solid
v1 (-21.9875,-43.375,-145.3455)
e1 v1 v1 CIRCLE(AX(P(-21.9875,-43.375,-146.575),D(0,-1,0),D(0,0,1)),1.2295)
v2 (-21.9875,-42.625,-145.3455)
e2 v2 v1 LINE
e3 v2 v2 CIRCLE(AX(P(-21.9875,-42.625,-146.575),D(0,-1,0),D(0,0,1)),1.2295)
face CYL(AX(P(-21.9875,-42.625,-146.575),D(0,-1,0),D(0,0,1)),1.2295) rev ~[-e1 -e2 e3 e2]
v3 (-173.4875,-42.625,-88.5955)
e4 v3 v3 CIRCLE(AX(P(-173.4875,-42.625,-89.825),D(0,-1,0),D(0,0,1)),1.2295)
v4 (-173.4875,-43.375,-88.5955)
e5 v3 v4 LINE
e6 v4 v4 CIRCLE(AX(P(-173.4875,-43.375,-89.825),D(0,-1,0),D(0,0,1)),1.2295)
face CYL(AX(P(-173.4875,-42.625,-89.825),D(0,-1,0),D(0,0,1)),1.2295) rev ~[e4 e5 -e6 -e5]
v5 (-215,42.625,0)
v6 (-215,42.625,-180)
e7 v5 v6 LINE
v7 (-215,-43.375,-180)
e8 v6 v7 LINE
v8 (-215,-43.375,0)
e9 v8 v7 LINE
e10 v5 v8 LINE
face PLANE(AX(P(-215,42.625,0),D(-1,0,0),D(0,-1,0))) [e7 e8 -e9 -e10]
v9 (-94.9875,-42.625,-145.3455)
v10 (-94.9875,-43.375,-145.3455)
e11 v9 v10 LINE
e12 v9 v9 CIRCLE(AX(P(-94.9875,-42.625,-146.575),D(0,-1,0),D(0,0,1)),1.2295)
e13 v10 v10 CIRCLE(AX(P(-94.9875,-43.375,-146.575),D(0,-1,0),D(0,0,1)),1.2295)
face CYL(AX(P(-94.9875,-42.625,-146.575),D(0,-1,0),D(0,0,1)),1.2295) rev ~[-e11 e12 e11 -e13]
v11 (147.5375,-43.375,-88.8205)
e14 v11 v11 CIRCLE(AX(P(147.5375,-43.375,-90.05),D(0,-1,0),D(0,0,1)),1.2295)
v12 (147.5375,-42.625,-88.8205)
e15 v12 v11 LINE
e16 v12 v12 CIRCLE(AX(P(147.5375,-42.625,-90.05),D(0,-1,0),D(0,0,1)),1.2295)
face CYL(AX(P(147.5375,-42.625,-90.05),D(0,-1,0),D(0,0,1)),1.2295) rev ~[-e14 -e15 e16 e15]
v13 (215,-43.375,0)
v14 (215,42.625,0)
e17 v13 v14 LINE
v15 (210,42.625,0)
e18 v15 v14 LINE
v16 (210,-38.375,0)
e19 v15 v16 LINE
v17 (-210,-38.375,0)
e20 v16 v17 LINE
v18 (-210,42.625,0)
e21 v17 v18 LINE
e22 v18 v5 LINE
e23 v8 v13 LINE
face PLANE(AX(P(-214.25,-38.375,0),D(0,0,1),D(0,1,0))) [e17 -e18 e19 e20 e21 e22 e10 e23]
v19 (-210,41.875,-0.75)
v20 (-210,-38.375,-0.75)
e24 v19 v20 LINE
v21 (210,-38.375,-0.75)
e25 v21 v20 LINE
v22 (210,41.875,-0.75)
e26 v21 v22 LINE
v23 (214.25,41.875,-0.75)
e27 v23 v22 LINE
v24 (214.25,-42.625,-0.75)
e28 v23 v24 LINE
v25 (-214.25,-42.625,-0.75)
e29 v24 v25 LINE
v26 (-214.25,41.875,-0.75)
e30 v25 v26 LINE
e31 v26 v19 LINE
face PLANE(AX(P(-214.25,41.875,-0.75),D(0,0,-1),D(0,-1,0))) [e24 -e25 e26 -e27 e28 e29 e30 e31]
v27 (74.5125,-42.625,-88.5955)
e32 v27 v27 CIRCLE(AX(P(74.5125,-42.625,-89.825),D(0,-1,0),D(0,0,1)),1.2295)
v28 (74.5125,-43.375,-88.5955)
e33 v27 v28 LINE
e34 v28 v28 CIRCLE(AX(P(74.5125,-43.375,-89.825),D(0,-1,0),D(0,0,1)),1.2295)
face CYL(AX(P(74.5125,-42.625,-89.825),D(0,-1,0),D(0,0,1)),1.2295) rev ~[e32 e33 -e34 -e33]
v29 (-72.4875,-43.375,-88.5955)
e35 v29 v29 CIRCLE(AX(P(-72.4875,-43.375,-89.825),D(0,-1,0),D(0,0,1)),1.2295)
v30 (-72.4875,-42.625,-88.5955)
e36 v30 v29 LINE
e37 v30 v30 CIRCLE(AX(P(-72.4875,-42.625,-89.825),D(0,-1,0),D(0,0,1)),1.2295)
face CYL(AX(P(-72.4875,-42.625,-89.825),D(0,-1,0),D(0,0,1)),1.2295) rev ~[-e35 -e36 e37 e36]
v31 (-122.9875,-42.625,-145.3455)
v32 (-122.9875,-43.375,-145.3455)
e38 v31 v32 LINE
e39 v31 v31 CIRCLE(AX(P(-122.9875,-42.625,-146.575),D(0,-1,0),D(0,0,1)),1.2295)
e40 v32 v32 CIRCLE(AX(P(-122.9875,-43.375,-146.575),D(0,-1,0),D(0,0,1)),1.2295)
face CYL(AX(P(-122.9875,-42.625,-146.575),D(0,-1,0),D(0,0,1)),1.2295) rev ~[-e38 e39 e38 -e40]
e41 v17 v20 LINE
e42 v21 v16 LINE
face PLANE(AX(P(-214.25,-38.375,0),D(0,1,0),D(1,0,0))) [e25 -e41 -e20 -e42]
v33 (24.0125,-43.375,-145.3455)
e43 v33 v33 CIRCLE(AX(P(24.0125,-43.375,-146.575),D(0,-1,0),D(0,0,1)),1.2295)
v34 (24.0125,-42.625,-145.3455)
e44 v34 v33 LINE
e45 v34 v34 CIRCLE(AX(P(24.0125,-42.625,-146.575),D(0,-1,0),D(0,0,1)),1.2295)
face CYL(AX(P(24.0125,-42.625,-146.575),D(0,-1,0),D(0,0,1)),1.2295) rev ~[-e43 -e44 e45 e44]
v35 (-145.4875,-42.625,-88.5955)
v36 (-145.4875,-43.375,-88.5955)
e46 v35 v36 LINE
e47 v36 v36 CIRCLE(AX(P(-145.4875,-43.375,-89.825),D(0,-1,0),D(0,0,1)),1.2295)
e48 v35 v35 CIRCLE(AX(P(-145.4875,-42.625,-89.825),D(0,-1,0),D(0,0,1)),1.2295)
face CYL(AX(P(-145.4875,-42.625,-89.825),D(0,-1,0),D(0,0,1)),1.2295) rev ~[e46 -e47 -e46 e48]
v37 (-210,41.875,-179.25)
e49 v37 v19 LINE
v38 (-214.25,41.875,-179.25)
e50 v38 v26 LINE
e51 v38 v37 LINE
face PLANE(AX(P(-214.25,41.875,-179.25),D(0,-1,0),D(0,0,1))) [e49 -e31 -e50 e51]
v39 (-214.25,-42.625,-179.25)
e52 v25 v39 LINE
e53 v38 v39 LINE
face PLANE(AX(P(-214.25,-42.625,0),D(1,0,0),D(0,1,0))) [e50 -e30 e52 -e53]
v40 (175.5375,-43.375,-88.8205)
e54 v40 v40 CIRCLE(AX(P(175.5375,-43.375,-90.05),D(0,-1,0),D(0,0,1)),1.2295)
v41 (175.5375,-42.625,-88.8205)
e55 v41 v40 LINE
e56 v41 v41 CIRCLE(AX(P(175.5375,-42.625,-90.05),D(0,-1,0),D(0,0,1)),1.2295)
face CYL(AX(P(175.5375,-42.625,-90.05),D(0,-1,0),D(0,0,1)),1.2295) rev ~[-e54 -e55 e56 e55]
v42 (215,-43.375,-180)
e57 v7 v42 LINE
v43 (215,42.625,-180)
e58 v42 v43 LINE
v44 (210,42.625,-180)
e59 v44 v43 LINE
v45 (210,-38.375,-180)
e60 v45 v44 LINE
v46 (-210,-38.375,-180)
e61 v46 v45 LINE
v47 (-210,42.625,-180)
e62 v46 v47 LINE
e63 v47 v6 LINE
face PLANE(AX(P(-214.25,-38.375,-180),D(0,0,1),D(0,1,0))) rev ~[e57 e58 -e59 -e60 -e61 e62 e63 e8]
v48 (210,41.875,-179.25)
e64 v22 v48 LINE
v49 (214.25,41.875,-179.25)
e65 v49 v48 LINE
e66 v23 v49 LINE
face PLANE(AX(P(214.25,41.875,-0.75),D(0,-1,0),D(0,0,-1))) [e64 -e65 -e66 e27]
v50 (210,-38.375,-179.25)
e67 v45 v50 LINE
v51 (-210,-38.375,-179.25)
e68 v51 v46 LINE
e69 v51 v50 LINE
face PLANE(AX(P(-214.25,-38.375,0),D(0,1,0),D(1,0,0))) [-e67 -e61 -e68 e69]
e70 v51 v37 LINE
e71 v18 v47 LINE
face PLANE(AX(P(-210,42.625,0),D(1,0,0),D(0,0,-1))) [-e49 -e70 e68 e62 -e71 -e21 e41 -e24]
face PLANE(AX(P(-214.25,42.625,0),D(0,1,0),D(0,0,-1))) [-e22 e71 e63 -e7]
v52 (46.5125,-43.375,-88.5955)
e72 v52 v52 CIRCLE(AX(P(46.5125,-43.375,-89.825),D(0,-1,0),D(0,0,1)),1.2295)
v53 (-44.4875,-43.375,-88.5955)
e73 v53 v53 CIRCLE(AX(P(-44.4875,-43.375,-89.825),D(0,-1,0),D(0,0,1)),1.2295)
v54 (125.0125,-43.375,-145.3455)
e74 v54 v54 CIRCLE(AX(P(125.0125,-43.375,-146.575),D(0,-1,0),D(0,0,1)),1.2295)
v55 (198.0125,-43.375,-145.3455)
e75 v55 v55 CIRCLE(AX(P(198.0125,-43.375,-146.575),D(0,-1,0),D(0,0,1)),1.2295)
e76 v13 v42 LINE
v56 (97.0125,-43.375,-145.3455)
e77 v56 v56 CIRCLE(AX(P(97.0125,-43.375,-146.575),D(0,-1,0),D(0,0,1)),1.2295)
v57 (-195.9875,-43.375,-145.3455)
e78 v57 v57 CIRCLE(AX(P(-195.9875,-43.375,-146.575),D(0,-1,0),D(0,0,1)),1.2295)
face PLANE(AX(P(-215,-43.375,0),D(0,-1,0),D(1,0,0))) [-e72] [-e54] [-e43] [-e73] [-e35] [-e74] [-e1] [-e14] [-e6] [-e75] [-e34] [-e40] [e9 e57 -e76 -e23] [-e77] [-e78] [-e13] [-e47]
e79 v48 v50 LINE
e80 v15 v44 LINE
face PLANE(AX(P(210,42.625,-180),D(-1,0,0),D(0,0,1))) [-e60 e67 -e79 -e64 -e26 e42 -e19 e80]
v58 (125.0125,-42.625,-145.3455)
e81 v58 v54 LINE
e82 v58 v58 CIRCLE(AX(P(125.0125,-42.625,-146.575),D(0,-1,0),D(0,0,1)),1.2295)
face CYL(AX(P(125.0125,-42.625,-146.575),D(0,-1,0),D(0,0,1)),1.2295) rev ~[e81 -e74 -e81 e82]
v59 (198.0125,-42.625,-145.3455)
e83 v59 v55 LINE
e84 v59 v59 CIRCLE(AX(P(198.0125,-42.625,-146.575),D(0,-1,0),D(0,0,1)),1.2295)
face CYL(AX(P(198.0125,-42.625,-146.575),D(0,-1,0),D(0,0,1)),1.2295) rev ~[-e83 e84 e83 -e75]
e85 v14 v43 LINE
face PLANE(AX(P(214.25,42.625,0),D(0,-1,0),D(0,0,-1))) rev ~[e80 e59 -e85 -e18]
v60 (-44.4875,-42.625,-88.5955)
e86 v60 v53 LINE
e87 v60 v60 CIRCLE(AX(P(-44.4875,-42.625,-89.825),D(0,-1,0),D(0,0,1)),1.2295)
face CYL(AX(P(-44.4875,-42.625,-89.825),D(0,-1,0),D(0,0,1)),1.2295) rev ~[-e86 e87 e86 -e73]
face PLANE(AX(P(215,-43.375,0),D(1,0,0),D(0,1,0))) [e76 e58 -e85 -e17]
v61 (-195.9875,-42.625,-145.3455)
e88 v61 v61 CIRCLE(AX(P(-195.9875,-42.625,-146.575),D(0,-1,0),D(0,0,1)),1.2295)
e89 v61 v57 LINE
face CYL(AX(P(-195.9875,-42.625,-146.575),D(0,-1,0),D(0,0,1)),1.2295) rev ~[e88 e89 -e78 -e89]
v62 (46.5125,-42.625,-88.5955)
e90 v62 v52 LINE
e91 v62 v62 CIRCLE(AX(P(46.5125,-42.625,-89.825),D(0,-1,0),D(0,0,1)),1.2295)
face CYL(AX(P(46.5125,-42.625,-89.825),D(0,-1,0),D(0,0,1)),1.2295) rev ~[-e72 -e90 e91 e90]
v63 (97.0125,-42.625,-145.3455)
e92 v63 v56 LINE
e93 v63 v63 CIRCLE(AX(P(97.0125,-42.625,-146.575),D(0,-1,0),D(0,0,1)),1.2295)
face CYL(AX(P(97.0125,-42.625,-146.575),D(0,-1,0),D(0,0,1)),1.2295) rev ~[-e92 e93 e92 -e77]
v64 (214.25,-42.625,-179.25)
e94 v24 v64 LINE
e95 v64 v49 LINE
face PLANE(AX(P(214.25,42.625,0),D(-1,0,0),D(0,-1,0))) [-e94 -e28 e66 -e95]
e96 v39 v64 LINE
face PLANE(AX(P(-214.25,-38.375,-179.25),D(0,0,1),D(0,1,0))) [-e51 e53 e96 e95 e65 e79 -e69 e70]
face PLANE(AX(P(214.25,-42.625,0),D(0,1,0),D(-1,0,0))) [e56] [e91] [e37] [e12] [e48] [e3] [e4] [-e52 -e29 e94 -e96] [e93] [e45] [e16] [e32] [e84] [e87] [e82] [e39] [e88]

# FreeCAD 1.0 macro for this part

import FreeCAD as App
import Part
import Sketcher
from FreeCAD import Vector


def add_polygon(sketch, points):
    """Adds a closed chain of lines whose ends are joined by coincident constraints."""
    first, n = sketch.GeometryCount, len(points)
    for a, b in zip(points, points[1:] + points[:1]):
        sketch.addGeometry(Part.LineSegment(App.Vector(*a, 0), App.Vector(*b, 0)), False)
    for i in range(n):
        sketch.addConstraint(Sketcher.Constraint("Coincident", first + i, 2, first + (i + 1) % n, 1))

doc = App.newDocument("Part")
params = doc.addObject("Spreadsheet::Sheet", "Params")
for row, (alias, value) in enumerate([
    ("sketch1_width", "430 mm"),
    ("sketch1_height", "86 mm"),
    ("sketch1_width2", "428.5 mm"),
    ("sketch1_height2", "85.25 mm"),
    ("pad1_length", "180 mm"),
    ("sketch2_height", "0.75 mm"),
    ("sketch2_width", "428.5 mm"),
    ("pad2_length", "4.25 mm"),
    ("sketch3_width", "81 mm"),
    ("sketch3_height", "178.5 mm"),
    ("sketch3_width2", "80.25 mm"),
    ("sketch3_height2", "180 mm"),
    ("pad3_length", "4.25 mm"),
    ("sketch4_width", "81 mm"),
    ("sketch4_height", "178.5 mm"),
    ("sketch4_width2", "80.25 mm"),
    ("sketch4_height2", "180 mm"),
    ("pad4_length", "4.25 mm"),
    ("hole_diameter", "2.459 mm"),
], start=1):
    params.set(f"A{row}", alias)
    params.set(f"B{row}", "=" + value)
    params.setAlias(f"B{row}", alias)

body = doc.addObject("PartDesign::Body", "Body")

sketch1 = body.newObject("Sketcher::SketchObject", "Sketch")
sketch1.AttachmentSupport = (doc.getObject("XY_Plane"), [""])
sketch1.MapMode = "FlatFace"
add_polygon(sketch1, [(-215, 42.6), (-215, -43.4), (215, -43.4), (215, 42.6), (214.2, 42.6), (214.2, -42.6), (-214.2, -42.6), (-214.2, 42.6)])
sketch1.addConstraint(Sketcher.Constraint("Vertical", 0))
sketch1.addConstraint(Sketcher.Constraint("Horizontal", 1))
sketch1.addConstraint(Sketcher.Constraint("Vertical", 2))
sketch1.addConstraint(Sketcher.Constraint("Horizontal", 3))
sketch1.addConstraint(Sketcher.Constraint("Vertical", 4))
sketch1.addConstraint(Sketcher.Constraint("Horizontal", 5))
sketch1.addConstraint(Sketcher.Constraint("Vertical", 6))
sketch1.addConstraint(Sketcher.Constraint("Horizontal", 7))
sketch1.addConstraint(Sketcher.Constraint("Symmetric", 3, 2, 5, 2, -1, 1))
sketch1.addConstraint(Sketcher.Constraint("Symmetric", 2, 2, 7, 2, -2))
sketch1.addConstraint(Sketcher.Constraint("DistanceX", 1, 1, 1, 2, 430.0))
sketch1.addConstraint(Sketcher.Constraint("DistanceY", 0, 2, 0, 1, 86.0))
sketch1.addConstraint(Sketcher.Constraint("DistanceX", 5, 2, 5, 1, 428.5))
sketch1.addConstraint(Sketcher.Constraint("DistanceY", 4, 2, 4, 1, 85.25))
sketch1.setExpression("Constraints[18]", "Params.sketch1_width")
sketch1.setExpression("Constraints[19]", "Params.sketch1_height")
sketch1.setExpression("Constraints[20]", "Params.sketch1_width2")
sketch1.setExpression("Constraints[21]", "Params.sketch1_height2")
pad1 = body.newObject("PartDesign::Pad", "Pad")
pad1.Profile = sketch1
pad1.setExpression("Length", "Params.pad1_length")
pad1.Reversed = True

sketch2 = body.newObject("Sketcher::SketchObject", "Sketch001")
sketch2.AttachmentSupport = (doc.getObject("XZ_Plane"), [""])
sketch2.MapMode = "FlatFace"
sketch2.AttachmentOffset = App.Placement(Vector(0, 0, 42.625), App.Rotation())
add_polygon(sketch2, [(-214.2, 0), (214.2, 0), (214.2, -0.8), (-214.2, -0.8)])
add_polygon(sketch2, [(-214.2, -179.2), (214.2, -179.2), (214.2, -180), (-214.2, -180)])
sketch2.addConstraint(Sketcher.Constraint("Horizontal", 0))
sketch2.addConstraint(Sketcher.Constraint("Vertical", 1))
sketch2.addConstraint(Sketcher.Constraint("Horizontal", 2))
sketch2.addConstraint(Sketcher.Constraint("Vertical", 3))
sketch2.addConstraint(Sketcher.Constraint("Horizontal", 4))
sketch2.addConstraint(Sketcher.Constraint("Vertical", 5))
sketch2.addConstraint(Sketcher.Constraint("Horizontal", 6))
sketch2.addConstraint(Sketcher.Constraint("Vertical", 7))
sketch2.addConstraint(Sketcher.Constraint("Symmetric", 0, 2, 3, 2, -1, 1))
sketch2.addConstraint(Sketcher.Constraint("Vertical", 1, 2, 4, 2))
sketch2.addConstraint(Sketcher.Constraint("Vertical", 3, 2, 6, 2))
sketch2.addConstraint(Sketcher.Constraint("Equal", 3, 5))
sketch2.addConstraint(Sketcher.Constraint("DistanceY", 1, 2, 1, 1, 0.75))
sketch2.addConstraint(Sketcher.Constraint("DistanceX", 0, 1, 0, 2, 428.5))
sketch2.addConstraint(Sketcher.Constraint("DistanceY", 5, 2, -1, 1, 180.0))
sketch2.setExpression("Constraints[20]", "Params.sketch2_height")
sketch2.setExpression("Constraints[21]", "Params.sketch2_width")
pad2 = body.newObject("PartDesign::Pad", "Pad001")
pad2.Profile = sketch2
pad2.setExpression("Length", "Params.pad2_length")
pad2.Reversed = True

sketch3 = body.newObject("Sketcher::SketchObject", "Sketch002")
sketch3.AttachmentSupport = (doc.getObject("YZ_Plane"), [""])
sketch3.MapMode = "FlatFace"
sketch3.AttachmentOffset = App.Placement(Vector(0, 0, 214.25), App.Rotation())
add_polygon(sketch3, [(42.6, -180), (-38.4, -180), (-38.4, -179.2), (41.9, -179.2), (41.9, -0.8), (-38.4, -0.8), (-38.4, 0), (42.6, 0)])
sketch3.addConstraint(Sketcher.Constraint("Horizontal", 0))
sketch3.addConstraint(Sketcher.Constraint("Vertical", 1))
sketch3.addConstraint(Sketcher.Constraint("Horizontal", 2))
sketch3.addConstraint(Sketcher.Constraint("Vertical", 3))
sketch3.addConstraint(Sketcher.Constraint("Horizontal", 4))
sketch3.addConstraint(Sketcher.Constraint("Vertical", 5))
sketch3.addConstraint(Sketcher.Constraint("Horizontal", 6))
sketch3.addConstraint(Sketcher.Constraint("Vertical", 7))
sketch3.addConstraint(Sketcher.Constraint("PointOnObject", 5, 2, -1))
sketch3.addConstraint(Sketcher.Constraint("Vertical", 1, 2, 4, 2))
sketch3.addConstraint(Sketcher.Constraint("Equal", 1, 5))
sketch3.addConstraint(Sketcher.Constraint("DistanceX", 0, 2, 0, 1, 81.0))
sketch3.addConstraint(Sketcher.Constraint("DistanceY", 3, 1, 3, 2, 178.5))
sketch3.addConstraint(Sketcher.Constraint("DistanceX", 2, 1, 2, 2, 80.25))
sketch3.addConstraint(Sketcher.Constraint("DistanceY", 7, 2, 7, 1, 180.0))
sketch3.addConstraint(Sketcher.Constraint("DistanceX", 0, 2, -1, 1, 38.375))
sketch3.setExpression("Constraints[19]", "Params.sketch3_width")
sketch3.setExpression("Constraints[20]", "Params.sketch3_height")
sketch3.setExpression("Constraints[21]", "Params.sketch3_width2")
sketch3.setExpression("Constraints[22]", "Params.sketch3_height2")
pad3 = body.newObject("PartDesign::Pad", "Pad002")
pad3.Profile = sketch3
pad3.setExpression("Length", "Params.pad3_length")
pad3.Reversed = True

sketch4 = body.newObject("Sketcher::SketchObject", "Sketch003")
sketch4.AttachmentSupport = (doc.getObject("YZ_Plane"), [""])
sketch4.MapMode = "FlatFace"
sketch4.AttachmentOffset = App.Placement(Vector(0, 0, -214.25), App.Rotation())
add_polygon(sketch4, [(42.6, 0), (-38.4, 0), (-38.4, -0.8), (41.9, -0.8), (41.9, -179.2), (-38.4, -179.2), (-38.4, -180), (42.6, -180)])
sketch4.addConstraint(Sketcher.Constraint("Horizontal", 0))
sketch4.addConstraint(Sketcher.Constraint("Vertical", 1))
sketch4.addConstraint(Sketcher.Constraint("Horizontal", 2))
sketch4.addConstraint(Sketcher.Constraint("Vertical", 3))
sketch4.addConstraint(Sketcher.Constraint("Horizontal", 4))
sketch4.addConstraint(Sketcher.Constraint("Vertical", 5))
sketch4.addConstraint(Sketcher.Constraint("Horizontal", 6))
sketch4.addConstraint(Sketcher.Constraint("Vertical", 7))
sketch4.addConstraint(Sketcher.Constraint("PointOnObject", 0, 2, -1))
sketch4.addConstraint(Sketcher.Constraint("Vertical", 1, 2, 4, 2))
sketch4.addConstraint(Sketcher.Constraint("Equal", 1, 5))
sketch4.addConstraint(Sketcher.Constraint("DistanceX", 0, 2, 0, 1, 81.0))
sketch4.addConstraint(Sketcher.Constraint("DistanceY", 3, 2, 3, 1, 178.5))
sketch4.addConstraint(Sketcher.Constraint("DistanceX", 2, 1, 2, 2, 80.25))
sketch4.addConstraint(Sketcher.Constraint("DistanceY", 7, 1, 7, 2, 180.0))
sketch4.addConstraint(Sketcher.Constraint("DistanceX", 0, 2, -1, 1, 38.375))
sketch4.setExpression("Constraints[19]", "Params.sketch4_width")
sketch4.setExpression("Constraints[20]", "Params.sketch4_height")
sketch4.setExpression("Constraints[21]", "Params.sketch4_width2")
sketch4.setExpression("Constraints[22]", "Params.sketch4_height2")
pad4 = body.newObject("PartDesign::Pad", "Pad003")
pad4.Profile = sketch4
pad4.setExpression("Length", "Params.pad4_length")

sketch5 = body.newObject("Sketcher::SketchObject", "Sketch004")
sketch5.AttachmentSupport = (doc.getObject("XZ_Plane"), [""])
sketch5.MapMode = "FlatFace"
sketch5.AttachmentOffset = App.Placement(Vector(0, 0, 42.625), App.Rotation())
sketch5.addGeometry(Part.Circle(Vector(-196, -146.6, 0), Vector(0, 0, 1), 1.2), False)
sketch5.addGeometry(Part.Circle(Vector(-123, -146.6, 0), Vector(0, 0, 1), 1.2), False)
sketch5.addGeometry(Part.Circle(Vector(-145.5, -89.8, 0), Vector(0, 0, 1), 1.2), False)
sketch5.addGeometry(Part.Circle(Vector(-173.5, -89.8, 0), Vector(0, 0, 1), 1.2), False)
sketch5.addGeometry(Part.Circle(Vector(-95, -146.6, 0), Vector(0, 0, 1), 1.2), False)
sketch5.addGeometry(Part.Circle(Vector(-72.5, -89.8, 0), Vector(0, 0, 1), 1.2), False)
sketch5.addGeometry(Part.Circle(Vector(-44.5, -89.8, 0), Vector(0, 0, 1), 1.2), False)
sketch5.addGeometry(Part.Circle(Vector(-22, -146.6, 0), Vector(0, 0, 1), 1.2), False)
sketch5.addGeometry(Part.Circle(Vector(24, -146.6, 0), Vector(0, 0, 1), 1.2), False)
sketch5.addGeometry(Part.Circle(Vector(46.5, -89.8, 0), Vector(0, 0, 1), 1.2), False)
sketch5.addGeometry(Part.Circle(Vector(74.5, -89.8, 0), Vector(0, 0, 1), 1.2), False)
sketch5.addGeometry(Part.Circle(Vector(97, -146.6, 0), Vector(0, 0, 1), 1.2), False)
sketch5.addGeometry(Part.Circle(Vector(125, -146.6, 0), Vector(0, 0, 1), 1.2), False)
sketch5.addGeometry(Part.Circle(Vector(198, -146.6, 0), Vector(0, 0, 1), 1.2), False)
sketch5.addGeometry(Part.Circle(Vector(175.5, -90, 0), Vector(0, 0, 1), 1.2), False)
sketch5.addGeometry(Part.Circle(Vector(147.5, -90, 0), Vector(0, 0, 1), 1.2), False)
sketch5.addConstraint(Sketcher.Constraint("Equal", 0, 1))
sketch5.addConstraint(Sketcher.Constraint("Equal", 1, 2))
sketch5.addConstraint(Sketcher.Constraint("Equal", 2, 3))
sketch5.addConstraint(Sketcher.Constraint("Equal", 3, 4))
sketch5.addConstraint(Sketcher.Constraint("Equal", 4, 5))
sketch5.addConstraint(Sketcher.Constraint("Equal", 5, 6))
sketch5.addConstraint(Sketcher.Constraint("Equal", 6, 7))
sketch5.addConstraint(Sketcher.Constraint("Equal", 7, 8))
sketch5.addConstraint(Sketcher.Constraint("Equal", 8, 9))
sketch5.addConstraint(Sketcher.Constraint("Equal", 9, 10))
sketch5.addConstraint(Sketcher.Constraint("Equal", 10, 11))
sketch5.addConstraint(Sketcher.Constraint("Equal", 11, 12))
sketch5.addConstraint(Sketcher.Constraint("Equal", 12, 13))
sketch5.addConstraint(Sketcher.Constraint("Equal", 13, 14))
sketch5.addConstraint(Sketcher.Constraint("Equal", 14, 15))
sketch5.addConstraint(Sketcher.Constraint("Horizontal", 0, 3, 1, 3))
sketch5.addConstraint(Sketcher.Constraint("Horizontal", 2, 3, 3, 3))
sketch5.addConstraint(Sketcher.Constraint("Horizontal", 1, 3, 4, 3))
sketch5.addConstraint(Sketcher.Constraint("Horizontal", 3, 3, 5, 3))
sketch5.addConstraint(Sketcher.Constraint("Horizontal", 5, 3, 6, 3))
sketch5.addConstraint(Sketcher.Constraint("Horizontal", 4, 3, 7, 3))
sketch5.addConstraint(Sketcher.Constraint("Horizontal", 7, 3, 8, 3))
sketch5.addConstraint(Sketcher.Constraint("Horizontal", 6, 3, 9, 3))
sketch5.addConstraint(Sketcher.Constraint("Horizontal", 9, 3, 10, 3))
sketch5.addConstraint(Sketcher.Constraint("Horizontal", 8, 3, 11, 3))
sketch5.addConstraint(Sketcher.Constraint("Horizontal", 11, 3, 12, 3))
sketch5.addConstraint(Sketcher.Constraint("Horizontal", 12, 3, 13, 3))
sketch5.addConstraint(Sketcher.Constraint("Horizontal", 14, 3, 15, 3))
sketch5.addConstraint(Sketcher.Constraint("Diameter", 0, 2.459))
sketch5.addConstraint(Sketcher.Constraint("DistanceX", 0, 3, 1, 3, 73.0))
sketch5.addConstraint(Sketcher.Constraint("DistanceX", 3, 3, 2, 3, 28.0))
sketch5.addConstraint(Sketcher.Constraint("DistanceX", 1, 3, 4, 3, 28.0))
sketch5.addConstraint(Sketcher.Constraint("DistanceX", 2, 3, 5, 3, 73.0))
sketch5.addConstraint(Sketcher.Constraint("DistanceX", 5, 3, 6, 3, 28.0))
sketch5.addConstraint(Sketcher.Constraint("DistanceX", 4, 3, 7, 3, 73.0))
sketch5.addConstraint(Sketcher.Constraint("DistanceX", 7, 3, 8, 3, 46.0))
sketch5.addConstraint(Sketcher.Constraint("DistanceX", 6, 3, 9, 3, 91.0))
sketch5.addConstraint(Sketcher.Constraint("DistanceX", 9, 3, 10, 3, 28.0))
sketch5.addConstraint(Sketcher.Constraint("DistanceX", 8, 3, 11, 3, 73.0))
sketch5.addConstraint(Sketcher.Constraint("DistanceX", 11, 3, 12, 3, 28.0))
sketch5.addConstraint(Sketcher.Constraint("DistanceX", 12, 3, 13, 3, 73.0))
sketch5.addConstraint(Sketcher.Constraint("DistanceX", 15, 3, 14, 3, 28.0))
sketch5.addConstraint(Sketcher.Constraint("DistanceX", 2, 3, 1, 3, 22.5))
sketch5.addConstraint(Sketcher.Constraint("DistanceY", 14, 3, -1, 1, 90.05))
sketch5.addConstraint(Sketcher.Constraint("DistanceY", 1, 3, 2, 3, 56.75))
sketch5.addConstraint(Sketcher.Constraint("DistanceY", 0, 3, -1, 1, 146.575))
sketch5.addConstraint(Sketcher.Constraint("DistanceX", 14, 3, 13, 3, 22.475))
sketch5.addConstraint(Sketcher.Constraint("DistanceX", 0, 3, -1, 1, 195.9875))
doc.recompute()
hole = body.newObject("PartDesign::Hole", "Hole")
hole.Profile = sketch5
hole.ThreadType = "None"
hole.setExpression("Diameter", "Params.hole_diameter")
hole.DepthType = "ThroughAll"
hole.Reversed = True

doc.recompute()
